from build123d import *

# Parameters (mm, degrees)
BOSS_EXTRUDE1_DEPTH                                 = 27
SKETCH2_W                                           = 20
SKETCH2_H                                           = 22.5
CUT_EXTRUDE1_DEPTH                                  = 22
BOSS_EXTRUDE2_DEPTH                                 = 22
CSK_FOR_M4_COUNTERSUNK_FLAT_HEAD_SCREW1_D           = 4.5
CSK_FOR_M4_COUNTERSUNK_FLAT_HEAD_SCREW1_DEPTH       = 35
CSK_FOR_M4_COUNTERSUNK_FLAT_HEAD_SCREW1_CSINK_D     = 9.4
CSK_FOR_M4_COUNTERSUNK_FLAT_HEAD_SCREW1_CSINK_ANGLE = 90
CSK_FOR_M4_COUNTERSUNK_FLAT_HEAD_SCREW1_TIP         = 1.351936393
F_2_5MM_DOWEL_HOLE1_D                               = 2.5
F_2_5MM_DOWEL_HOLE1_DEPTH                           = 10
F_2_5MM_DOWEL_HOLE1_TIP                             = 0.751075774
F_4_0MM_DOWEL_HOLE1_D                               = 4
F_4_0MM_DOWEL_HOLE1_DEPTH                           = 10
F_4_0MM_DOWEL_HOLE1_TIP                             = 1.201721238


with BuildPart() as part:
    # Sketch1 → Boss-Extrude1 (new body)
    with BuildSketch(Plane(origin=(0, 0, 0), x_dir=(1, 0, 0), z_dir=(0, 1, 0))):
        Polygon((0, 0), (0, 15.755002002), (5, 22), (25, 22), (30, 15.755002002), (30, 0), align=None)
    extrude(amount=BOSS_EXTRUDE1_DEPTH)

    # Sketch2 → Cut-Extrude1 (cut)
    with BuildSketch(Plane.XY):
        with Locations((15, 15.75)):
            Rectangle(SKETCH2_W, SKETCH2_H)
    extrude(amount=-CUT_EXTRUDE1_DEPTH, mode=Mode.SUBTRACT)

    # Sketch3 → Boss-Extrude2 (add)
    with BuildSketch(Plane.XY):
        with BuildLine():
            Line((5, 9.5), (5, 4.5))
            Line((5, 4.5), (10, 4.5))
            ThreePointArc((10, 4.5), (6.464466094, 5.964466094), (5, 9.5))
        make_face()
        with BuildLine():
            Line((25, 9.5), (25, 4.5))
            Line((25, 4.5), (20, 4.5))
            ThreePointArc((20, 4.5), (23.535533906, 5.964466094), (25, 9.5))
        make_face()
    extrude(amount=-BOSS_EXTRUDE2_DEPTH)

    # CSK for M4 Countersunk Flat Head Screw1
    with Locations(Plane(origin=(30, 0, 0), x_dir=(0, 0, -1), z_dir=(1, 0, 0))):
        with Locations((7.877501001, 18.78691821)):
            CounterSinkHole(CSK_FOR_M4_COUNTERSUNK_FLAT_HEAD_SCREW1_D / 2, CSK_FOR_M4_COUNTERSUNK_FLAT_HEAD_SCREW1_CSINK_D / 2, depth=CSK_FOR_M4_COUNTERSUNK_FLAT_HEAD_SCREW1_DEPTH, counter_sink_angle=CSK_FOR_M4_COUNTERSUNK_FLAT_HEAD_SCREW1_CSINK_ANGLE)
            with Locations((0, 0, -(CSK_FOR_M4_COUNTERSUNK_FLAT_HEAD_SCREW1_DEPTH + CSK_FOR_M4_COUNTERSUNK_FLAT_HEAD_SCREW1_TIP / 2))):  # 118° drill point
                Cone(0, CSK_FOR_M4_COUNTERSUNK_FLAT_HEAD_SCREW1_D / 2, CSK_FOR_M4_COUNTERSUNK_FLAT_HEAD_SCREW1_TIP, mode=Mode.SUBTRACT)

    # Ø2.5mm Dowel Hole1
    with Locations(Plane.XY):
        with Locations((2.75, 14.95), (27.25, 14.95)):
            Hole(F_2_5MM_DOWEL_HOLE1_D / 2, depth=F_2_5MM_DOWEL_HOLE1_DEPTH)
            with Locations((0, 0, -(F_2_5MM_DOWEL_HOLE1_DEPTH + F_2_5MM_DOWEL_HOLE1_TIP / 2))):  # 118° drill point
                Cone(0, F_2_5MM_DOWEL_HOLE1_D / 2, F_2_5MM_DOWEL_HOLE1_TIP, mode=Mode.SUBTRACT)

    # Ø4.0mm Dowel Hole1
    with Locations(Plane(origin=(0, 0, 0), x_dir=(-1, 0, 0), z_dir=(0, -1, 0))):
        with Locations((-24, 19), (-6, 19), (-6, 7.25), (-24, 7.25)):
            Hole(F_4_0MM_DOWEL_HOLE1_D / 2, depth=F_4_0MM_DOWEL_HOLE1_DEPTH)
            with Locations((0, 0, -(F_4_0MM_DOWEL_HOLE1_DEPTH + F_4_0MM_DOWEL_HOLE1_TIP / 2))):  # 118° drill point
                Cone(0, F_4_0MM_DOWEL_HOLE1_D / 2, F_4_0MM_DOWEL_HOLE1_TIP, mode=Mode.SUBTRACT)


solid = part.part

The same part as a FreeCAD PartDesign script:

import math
import FreeCAD as App
import Part
import Sketcher

doc = App.newDocument("Part")
body = doc.addObject("PartDesign::Body", "Body")

sketch1 = body.newObject("Sketcher::SketchObject", "Sketch")
sketch1.AttachmentSupport = (doc.getObject("XZ_Plane"), [""])
sketch1.MapMode = "FlatFace"
sketch1.addGeometry([
    Part.LineSegment(App.Vector(0, -15.755002, 0), App.Vector(0, 0, 0)),
    Part.LineSegment(App.Vector(0, 0, 0), App.Vector(30, 0, 0)),
    Part.LineSegment(App.Vector(30, 0, 0), App.Vector(30, -15.755002, 0)),
    Part.LineSegment(App.Vector(30, -15.755002, 0), App.Vector(25, -22, 0)),
    Part.LineSegment(App.Vector(25, -22, 0), App.Vector(5, -22, 0)),
    Part.LineSegment(App.Vector(5, -22, 0), App.Vector(0, -15.755002, 0)),
], False)
sketch1.addConstraint([
    Sketcher.Constraint("Coincident", 0, 2, 1, 1),
    Sketcher.Constraint("Coincident", 1, 2, 2, 1),
    Sketcher.Constraint("Coincident", 2, 2, 3, 1),
    Sketcher.Constraint("Coincident", 3, 2, 4, 1),
    Sketcher.Constraint("Coincident", 4, 2, 5, 1),
    Sketcher.Constraint("Coincident", 5, 2, 0, 1),
    Sketcher.Constraint("Vertical", 0),
    Sketcher.Constraint("Horizontal", 1),
    Sketcher.Constraint("Vertical", 2),
    Sketcher.Constraint("Horizontal", 4),
    Sketcher.Constraint("Coincident", 0, 2, -1, 1),
    Sketcher.Constraint("Horizontal", 2, 2, 5, 2),
    Sketcher.Constraint("Equal", 3, 5),
    Sketcher.Constraint("DistanceX", 1, 1, 1, 2, 30.0),
    Sketcher.Constraint("DistanceX", 4, 2, 4, 1, 20.0),
    Sketcher.Constraint("Distance", 3, 8.0),
    Sketcher.Constraint("DistanceY", 3, 2, -1, 1, 22.0),
])
pad1 = body.newObject("PartDesign::Pad", "Pad")
pad1.Profile = sketch1
pad1.Length = 27
pad1.Reversed = True

sketch2 = body.newObject("Sketcher::SketchObject", "Sketch001")
sketch2.AttachmentSupport = (doc.getObject("XY_Plane"), [""])
sketch2.MapMode = "FlatFace"
sketch2.addGeometry([
    Part.LineSegment(App.Vector(5, 27, 0), App.Vector(5, 4.5, 0)),
    Part.LineSegment(App.Vector(5, 4.5, 0), App.Vector(25, 4.5, 0)),
    Part.LineSegment(App.Vector(25, 4.5, 0), App.Vector(25, 27, 0)),
    Part.LineSegment(App.Vector(25, 27, 0), App.Vector(5, 27, 0)),
], False)
sketch2.addConstraint([
    Sketcher.Constraint("Coincident", 0, 2, 1, 1),
    Sketcher.Constraint("Coincident", 1, 2, 2, 1),
    Sketcher.Constraint("Coincident", 2, 2, 3, 1),
    Sketcher.Constraint("Coincident", 3, 2, 0, 1),
    Sketcher.Constraint("Vertical", 0),
    Sketcher.Constraint("Horizontal", 1),
    Sketcher.Constraint("Vertical", 2),
    Sketcher.Constraint("Horizontal", 3),
    Sketcher.Constraint("DistanceX", 1, 1, 1, 2, 20.0),
    Sketcher.Constraint("DistanceY", 0, 2, 0, 1, 22.5),
    Sketcher.Constraint("DistanceX", -1, 1, 0, 2, 5.0),
    Sketcher.Constraint("DistanceY", -1, 1, 2, 2, 27.0),
])
pocket1 = body.newObject("PartDesign::Pocket", "Pocket")
pocket1.Profile = sketch2
pocket1.Length = 22

sketch3 = body.newObject("Sketcher::SketchObject", "Sketch002")
sketch3.AttachmentSupport = (doc.getObject("XY_Plane"), [""])
sketch3.MapMode = "FlatFace"
sketch3.addGeometry([
    Part.LineSegment(App.Vector(5, 9.5, 0), App.Vector(5, 4.5, 0)),
    Part.LineSegment(App.Vector(5, 4.5, 0), App.Vector(10, 4.5, 0)),
    Part.ArcOfCircle(Part.Circle(App.Vector(10, 9.5, 0), App.Vector(0, 0, 1), 5), math.radians(180), math.radians(270)),
    Part.LineSegment(App.Vector(25, 4.5, 0), App.Vector(25, 9.5, 0)),
    Part.ArcOfCircle(Part.Circle(App.Vector(20, 9.5, 0), App.Vector(0, 0, 1), 5), math.radians(-90), math.radians(0)),
    Part.LineSegment(App.Vector(20, 4.5, 0), App.Vector(25, 4.5, 0)),
], False)
sketch3.addConstraint([
    Sketcher.Constraint("Coincident", 0, 2, 1, 1),
    Sketcher.Constraint("Tangent", 1, 2, 2, 2),
    Sketcher.Constraint("Tangent", 2, 1, 0, 1),
    Sketcher.Constraint("Tangent", 3, 2, 4, 2),
    Sketcher.Constraint("Tangent", 4, 1, 5, 1),
    Sketcher.Constraint("Coincident", 5, 2, 3, 1),
    Sketcher.Constraint("Vertical", 0),
    Sketcher.Constraint("Horizontal", 1),
    Sketcher.Constraint("Vertical", 3),
    Sketcher.Constraint("Horizontal", 5),
    Sketcher.Constraint("Equal", 2, 4),
    Sketcher.Constraint("Horizontal", 2, 3, 4, 3),
    Sketcher.Constraint("Radius", 2, 5.0),
    Sketcher.Constraint("DistanceX", -1, 1, 2, 3, 10.0),
    Sketcher.Constraint("DistanceX", -1, 1, 4, 3, 20.0),
    Sketcher.Constraint("DistanceY", -1, 1, 2, 3, 9.5),
])
pad2 = body.newObject("PartDesign::Pad", "Pad001")
pad2.Profile = sketch3
pad2.Length = 22
pad2.Reversed = True

sketch4 = body.newObject("Sketcher::SketchObject", "Sketch003")
sketch4.AttachmentSupport = (doc.getObject("YZ_Plane"), [""])
sketch4.MapMode = "FlatFace"
sketch4.AttachmentOffset = App.Placement(App.Vector(0, 0, 30), App.Rotation())
sketch4.addGeometry(Part.Circle(App.Vector(18.786918, -7.877501, 0), App.Vector(0, 0, 1), 2.25), False)
sketch4.addConstraint([
    Sketcher.Constraint("Diameter", 0, 4.5),
    Sketcher.Constraint("DistanceY", 0, 3, -1, 1, 7.877501),
    Sketcher.Constraint("DistanceX", -1, 1, 0, 3, 18.786918),
])
doc.recompute()
hole = body.newObject("PartDesign::Hole", "Hole")
hole.Profile = sketch4
hole.ThreadType = "None"
hole.Diameter = 4.5
hole.DepthType = "Dimension"
hole.Depth = 35
hole.DrillPoint = "Angled"
hole.DrillPointAngle = 118
hole.HoleCutType = "Countersink"
hole.HoleCutDiameter = 9.4
hole.HoleCutCountersinkAngle = 90

sketch5 = body.newObject("Sketcher::SketchObject", "Sketch004")
sketch5.AttachmentSupport = (doc.getObject("XY_Plane"), [""])
sketch5.MapMode = "FlatFace"
sketch5.addGeometry([
    Part.Circle(App.Vector(2.75, 14.95, 0), App.Vector(0, 0, 1), 1.25),
    Part.Circle(App.Vector(27.25, 14.95, 0), App.Vector(0, 0, 1), 1.25),
], False)
sketch5.addConstraint([
    Sketcher.Constraint("Equal", 0, 1),
    Sketcher.Constraint("Horizontal", 0, 3, 1, 3),
    Sketcher.Constraint("Diameter", 0, 2.5),
    Sketcher.Constraint("DistanceX", 0, 3, 1, 3, 24.5),
    Sketcher.Constraint("DistanceX", -1, 1, 0, 3, 2.75),
    Sketcher.Constraint("DistanceY", -1, 1, 0, 3, 14.95),
])
doc.recompute()
hole2 = body.newObject("PartDesign::Hole", "Hole001")
hole2.Profile = sketch5
hole2.ThreadType = "None"
hole2.Diameter = 2.5
hole2.DepthType = "Dimension"
hole2.Depth = 10
hole2.DrillPoint = "Angled"
hole2.DrillPointAngle = 118

sketch6 = body.newObject("Sketcher::SketchObject", "Sketch005")
sketch6.AttachmentSupport = (doc.getObject("XZ_Plane"), [""])
sketch6.MapMode = "FlatFace"
sketch6.addGeometry([
    Part.Circle(App.Vector(24, -19, 0), App.Vector(0, 0, 1), 2),
    Part.Circle(App.Vector(6, -19, 0), App.Vector(0, 0, 1), 2),
    Part.Circle(App.Vector(6, -7.25, 0), App.Vector(0, 0, 1), 2),
    Part.Circle(App.Vector(24, -7.25, 0), App.Vector(0, 0, 1), 2),
], False)
sketch6.addConstraint([
    Sketcher.Constraint("Equal", 0, 1),
    Sketcher.Constraint("Equal", 1, 2),
    Sketcher.Constraint("Equal", 2, 3),
    Sketcher.Constraint("Horizontal", 0, 3, 1, 3),
    Sketcher.Constraint("Horizontal", 2, 3, 3, 3),
    Sketcher.Constraint("Vertical", 1, 3, 2, 3),
    Sketcher.Constraint("Vertical", 0, 3, 3, 3),
    Sketcher.Constraint("Diameter", 0, 4.0),
    Sketcher.Constraint("DistanceX", -1, 1, 0, 3, 24.0),
    Sketcher.Constraint("DistanceY", 0, 3, -1, 1, 19.0),
    Sketcher.Constraint("DistanceX", -1, 1, 1, 3, 6.0),
    Sketcher.Constraint("DistanceY", 2, 3, -1, 1, 7.25),
])
doc.recompute()
hole3 = body.newObject("PartDesign::Hole", "Hole002")
hole3.Profile = sketch6
hole3.ThreadType = "None"
hole3.Diameter = 4
hole3.DepthType = "Dimension"
hole3.Depth = 10
hole3.DrillPoint = "Angled"
hole3.DrillPointAngle = 118

doc.recompute()
